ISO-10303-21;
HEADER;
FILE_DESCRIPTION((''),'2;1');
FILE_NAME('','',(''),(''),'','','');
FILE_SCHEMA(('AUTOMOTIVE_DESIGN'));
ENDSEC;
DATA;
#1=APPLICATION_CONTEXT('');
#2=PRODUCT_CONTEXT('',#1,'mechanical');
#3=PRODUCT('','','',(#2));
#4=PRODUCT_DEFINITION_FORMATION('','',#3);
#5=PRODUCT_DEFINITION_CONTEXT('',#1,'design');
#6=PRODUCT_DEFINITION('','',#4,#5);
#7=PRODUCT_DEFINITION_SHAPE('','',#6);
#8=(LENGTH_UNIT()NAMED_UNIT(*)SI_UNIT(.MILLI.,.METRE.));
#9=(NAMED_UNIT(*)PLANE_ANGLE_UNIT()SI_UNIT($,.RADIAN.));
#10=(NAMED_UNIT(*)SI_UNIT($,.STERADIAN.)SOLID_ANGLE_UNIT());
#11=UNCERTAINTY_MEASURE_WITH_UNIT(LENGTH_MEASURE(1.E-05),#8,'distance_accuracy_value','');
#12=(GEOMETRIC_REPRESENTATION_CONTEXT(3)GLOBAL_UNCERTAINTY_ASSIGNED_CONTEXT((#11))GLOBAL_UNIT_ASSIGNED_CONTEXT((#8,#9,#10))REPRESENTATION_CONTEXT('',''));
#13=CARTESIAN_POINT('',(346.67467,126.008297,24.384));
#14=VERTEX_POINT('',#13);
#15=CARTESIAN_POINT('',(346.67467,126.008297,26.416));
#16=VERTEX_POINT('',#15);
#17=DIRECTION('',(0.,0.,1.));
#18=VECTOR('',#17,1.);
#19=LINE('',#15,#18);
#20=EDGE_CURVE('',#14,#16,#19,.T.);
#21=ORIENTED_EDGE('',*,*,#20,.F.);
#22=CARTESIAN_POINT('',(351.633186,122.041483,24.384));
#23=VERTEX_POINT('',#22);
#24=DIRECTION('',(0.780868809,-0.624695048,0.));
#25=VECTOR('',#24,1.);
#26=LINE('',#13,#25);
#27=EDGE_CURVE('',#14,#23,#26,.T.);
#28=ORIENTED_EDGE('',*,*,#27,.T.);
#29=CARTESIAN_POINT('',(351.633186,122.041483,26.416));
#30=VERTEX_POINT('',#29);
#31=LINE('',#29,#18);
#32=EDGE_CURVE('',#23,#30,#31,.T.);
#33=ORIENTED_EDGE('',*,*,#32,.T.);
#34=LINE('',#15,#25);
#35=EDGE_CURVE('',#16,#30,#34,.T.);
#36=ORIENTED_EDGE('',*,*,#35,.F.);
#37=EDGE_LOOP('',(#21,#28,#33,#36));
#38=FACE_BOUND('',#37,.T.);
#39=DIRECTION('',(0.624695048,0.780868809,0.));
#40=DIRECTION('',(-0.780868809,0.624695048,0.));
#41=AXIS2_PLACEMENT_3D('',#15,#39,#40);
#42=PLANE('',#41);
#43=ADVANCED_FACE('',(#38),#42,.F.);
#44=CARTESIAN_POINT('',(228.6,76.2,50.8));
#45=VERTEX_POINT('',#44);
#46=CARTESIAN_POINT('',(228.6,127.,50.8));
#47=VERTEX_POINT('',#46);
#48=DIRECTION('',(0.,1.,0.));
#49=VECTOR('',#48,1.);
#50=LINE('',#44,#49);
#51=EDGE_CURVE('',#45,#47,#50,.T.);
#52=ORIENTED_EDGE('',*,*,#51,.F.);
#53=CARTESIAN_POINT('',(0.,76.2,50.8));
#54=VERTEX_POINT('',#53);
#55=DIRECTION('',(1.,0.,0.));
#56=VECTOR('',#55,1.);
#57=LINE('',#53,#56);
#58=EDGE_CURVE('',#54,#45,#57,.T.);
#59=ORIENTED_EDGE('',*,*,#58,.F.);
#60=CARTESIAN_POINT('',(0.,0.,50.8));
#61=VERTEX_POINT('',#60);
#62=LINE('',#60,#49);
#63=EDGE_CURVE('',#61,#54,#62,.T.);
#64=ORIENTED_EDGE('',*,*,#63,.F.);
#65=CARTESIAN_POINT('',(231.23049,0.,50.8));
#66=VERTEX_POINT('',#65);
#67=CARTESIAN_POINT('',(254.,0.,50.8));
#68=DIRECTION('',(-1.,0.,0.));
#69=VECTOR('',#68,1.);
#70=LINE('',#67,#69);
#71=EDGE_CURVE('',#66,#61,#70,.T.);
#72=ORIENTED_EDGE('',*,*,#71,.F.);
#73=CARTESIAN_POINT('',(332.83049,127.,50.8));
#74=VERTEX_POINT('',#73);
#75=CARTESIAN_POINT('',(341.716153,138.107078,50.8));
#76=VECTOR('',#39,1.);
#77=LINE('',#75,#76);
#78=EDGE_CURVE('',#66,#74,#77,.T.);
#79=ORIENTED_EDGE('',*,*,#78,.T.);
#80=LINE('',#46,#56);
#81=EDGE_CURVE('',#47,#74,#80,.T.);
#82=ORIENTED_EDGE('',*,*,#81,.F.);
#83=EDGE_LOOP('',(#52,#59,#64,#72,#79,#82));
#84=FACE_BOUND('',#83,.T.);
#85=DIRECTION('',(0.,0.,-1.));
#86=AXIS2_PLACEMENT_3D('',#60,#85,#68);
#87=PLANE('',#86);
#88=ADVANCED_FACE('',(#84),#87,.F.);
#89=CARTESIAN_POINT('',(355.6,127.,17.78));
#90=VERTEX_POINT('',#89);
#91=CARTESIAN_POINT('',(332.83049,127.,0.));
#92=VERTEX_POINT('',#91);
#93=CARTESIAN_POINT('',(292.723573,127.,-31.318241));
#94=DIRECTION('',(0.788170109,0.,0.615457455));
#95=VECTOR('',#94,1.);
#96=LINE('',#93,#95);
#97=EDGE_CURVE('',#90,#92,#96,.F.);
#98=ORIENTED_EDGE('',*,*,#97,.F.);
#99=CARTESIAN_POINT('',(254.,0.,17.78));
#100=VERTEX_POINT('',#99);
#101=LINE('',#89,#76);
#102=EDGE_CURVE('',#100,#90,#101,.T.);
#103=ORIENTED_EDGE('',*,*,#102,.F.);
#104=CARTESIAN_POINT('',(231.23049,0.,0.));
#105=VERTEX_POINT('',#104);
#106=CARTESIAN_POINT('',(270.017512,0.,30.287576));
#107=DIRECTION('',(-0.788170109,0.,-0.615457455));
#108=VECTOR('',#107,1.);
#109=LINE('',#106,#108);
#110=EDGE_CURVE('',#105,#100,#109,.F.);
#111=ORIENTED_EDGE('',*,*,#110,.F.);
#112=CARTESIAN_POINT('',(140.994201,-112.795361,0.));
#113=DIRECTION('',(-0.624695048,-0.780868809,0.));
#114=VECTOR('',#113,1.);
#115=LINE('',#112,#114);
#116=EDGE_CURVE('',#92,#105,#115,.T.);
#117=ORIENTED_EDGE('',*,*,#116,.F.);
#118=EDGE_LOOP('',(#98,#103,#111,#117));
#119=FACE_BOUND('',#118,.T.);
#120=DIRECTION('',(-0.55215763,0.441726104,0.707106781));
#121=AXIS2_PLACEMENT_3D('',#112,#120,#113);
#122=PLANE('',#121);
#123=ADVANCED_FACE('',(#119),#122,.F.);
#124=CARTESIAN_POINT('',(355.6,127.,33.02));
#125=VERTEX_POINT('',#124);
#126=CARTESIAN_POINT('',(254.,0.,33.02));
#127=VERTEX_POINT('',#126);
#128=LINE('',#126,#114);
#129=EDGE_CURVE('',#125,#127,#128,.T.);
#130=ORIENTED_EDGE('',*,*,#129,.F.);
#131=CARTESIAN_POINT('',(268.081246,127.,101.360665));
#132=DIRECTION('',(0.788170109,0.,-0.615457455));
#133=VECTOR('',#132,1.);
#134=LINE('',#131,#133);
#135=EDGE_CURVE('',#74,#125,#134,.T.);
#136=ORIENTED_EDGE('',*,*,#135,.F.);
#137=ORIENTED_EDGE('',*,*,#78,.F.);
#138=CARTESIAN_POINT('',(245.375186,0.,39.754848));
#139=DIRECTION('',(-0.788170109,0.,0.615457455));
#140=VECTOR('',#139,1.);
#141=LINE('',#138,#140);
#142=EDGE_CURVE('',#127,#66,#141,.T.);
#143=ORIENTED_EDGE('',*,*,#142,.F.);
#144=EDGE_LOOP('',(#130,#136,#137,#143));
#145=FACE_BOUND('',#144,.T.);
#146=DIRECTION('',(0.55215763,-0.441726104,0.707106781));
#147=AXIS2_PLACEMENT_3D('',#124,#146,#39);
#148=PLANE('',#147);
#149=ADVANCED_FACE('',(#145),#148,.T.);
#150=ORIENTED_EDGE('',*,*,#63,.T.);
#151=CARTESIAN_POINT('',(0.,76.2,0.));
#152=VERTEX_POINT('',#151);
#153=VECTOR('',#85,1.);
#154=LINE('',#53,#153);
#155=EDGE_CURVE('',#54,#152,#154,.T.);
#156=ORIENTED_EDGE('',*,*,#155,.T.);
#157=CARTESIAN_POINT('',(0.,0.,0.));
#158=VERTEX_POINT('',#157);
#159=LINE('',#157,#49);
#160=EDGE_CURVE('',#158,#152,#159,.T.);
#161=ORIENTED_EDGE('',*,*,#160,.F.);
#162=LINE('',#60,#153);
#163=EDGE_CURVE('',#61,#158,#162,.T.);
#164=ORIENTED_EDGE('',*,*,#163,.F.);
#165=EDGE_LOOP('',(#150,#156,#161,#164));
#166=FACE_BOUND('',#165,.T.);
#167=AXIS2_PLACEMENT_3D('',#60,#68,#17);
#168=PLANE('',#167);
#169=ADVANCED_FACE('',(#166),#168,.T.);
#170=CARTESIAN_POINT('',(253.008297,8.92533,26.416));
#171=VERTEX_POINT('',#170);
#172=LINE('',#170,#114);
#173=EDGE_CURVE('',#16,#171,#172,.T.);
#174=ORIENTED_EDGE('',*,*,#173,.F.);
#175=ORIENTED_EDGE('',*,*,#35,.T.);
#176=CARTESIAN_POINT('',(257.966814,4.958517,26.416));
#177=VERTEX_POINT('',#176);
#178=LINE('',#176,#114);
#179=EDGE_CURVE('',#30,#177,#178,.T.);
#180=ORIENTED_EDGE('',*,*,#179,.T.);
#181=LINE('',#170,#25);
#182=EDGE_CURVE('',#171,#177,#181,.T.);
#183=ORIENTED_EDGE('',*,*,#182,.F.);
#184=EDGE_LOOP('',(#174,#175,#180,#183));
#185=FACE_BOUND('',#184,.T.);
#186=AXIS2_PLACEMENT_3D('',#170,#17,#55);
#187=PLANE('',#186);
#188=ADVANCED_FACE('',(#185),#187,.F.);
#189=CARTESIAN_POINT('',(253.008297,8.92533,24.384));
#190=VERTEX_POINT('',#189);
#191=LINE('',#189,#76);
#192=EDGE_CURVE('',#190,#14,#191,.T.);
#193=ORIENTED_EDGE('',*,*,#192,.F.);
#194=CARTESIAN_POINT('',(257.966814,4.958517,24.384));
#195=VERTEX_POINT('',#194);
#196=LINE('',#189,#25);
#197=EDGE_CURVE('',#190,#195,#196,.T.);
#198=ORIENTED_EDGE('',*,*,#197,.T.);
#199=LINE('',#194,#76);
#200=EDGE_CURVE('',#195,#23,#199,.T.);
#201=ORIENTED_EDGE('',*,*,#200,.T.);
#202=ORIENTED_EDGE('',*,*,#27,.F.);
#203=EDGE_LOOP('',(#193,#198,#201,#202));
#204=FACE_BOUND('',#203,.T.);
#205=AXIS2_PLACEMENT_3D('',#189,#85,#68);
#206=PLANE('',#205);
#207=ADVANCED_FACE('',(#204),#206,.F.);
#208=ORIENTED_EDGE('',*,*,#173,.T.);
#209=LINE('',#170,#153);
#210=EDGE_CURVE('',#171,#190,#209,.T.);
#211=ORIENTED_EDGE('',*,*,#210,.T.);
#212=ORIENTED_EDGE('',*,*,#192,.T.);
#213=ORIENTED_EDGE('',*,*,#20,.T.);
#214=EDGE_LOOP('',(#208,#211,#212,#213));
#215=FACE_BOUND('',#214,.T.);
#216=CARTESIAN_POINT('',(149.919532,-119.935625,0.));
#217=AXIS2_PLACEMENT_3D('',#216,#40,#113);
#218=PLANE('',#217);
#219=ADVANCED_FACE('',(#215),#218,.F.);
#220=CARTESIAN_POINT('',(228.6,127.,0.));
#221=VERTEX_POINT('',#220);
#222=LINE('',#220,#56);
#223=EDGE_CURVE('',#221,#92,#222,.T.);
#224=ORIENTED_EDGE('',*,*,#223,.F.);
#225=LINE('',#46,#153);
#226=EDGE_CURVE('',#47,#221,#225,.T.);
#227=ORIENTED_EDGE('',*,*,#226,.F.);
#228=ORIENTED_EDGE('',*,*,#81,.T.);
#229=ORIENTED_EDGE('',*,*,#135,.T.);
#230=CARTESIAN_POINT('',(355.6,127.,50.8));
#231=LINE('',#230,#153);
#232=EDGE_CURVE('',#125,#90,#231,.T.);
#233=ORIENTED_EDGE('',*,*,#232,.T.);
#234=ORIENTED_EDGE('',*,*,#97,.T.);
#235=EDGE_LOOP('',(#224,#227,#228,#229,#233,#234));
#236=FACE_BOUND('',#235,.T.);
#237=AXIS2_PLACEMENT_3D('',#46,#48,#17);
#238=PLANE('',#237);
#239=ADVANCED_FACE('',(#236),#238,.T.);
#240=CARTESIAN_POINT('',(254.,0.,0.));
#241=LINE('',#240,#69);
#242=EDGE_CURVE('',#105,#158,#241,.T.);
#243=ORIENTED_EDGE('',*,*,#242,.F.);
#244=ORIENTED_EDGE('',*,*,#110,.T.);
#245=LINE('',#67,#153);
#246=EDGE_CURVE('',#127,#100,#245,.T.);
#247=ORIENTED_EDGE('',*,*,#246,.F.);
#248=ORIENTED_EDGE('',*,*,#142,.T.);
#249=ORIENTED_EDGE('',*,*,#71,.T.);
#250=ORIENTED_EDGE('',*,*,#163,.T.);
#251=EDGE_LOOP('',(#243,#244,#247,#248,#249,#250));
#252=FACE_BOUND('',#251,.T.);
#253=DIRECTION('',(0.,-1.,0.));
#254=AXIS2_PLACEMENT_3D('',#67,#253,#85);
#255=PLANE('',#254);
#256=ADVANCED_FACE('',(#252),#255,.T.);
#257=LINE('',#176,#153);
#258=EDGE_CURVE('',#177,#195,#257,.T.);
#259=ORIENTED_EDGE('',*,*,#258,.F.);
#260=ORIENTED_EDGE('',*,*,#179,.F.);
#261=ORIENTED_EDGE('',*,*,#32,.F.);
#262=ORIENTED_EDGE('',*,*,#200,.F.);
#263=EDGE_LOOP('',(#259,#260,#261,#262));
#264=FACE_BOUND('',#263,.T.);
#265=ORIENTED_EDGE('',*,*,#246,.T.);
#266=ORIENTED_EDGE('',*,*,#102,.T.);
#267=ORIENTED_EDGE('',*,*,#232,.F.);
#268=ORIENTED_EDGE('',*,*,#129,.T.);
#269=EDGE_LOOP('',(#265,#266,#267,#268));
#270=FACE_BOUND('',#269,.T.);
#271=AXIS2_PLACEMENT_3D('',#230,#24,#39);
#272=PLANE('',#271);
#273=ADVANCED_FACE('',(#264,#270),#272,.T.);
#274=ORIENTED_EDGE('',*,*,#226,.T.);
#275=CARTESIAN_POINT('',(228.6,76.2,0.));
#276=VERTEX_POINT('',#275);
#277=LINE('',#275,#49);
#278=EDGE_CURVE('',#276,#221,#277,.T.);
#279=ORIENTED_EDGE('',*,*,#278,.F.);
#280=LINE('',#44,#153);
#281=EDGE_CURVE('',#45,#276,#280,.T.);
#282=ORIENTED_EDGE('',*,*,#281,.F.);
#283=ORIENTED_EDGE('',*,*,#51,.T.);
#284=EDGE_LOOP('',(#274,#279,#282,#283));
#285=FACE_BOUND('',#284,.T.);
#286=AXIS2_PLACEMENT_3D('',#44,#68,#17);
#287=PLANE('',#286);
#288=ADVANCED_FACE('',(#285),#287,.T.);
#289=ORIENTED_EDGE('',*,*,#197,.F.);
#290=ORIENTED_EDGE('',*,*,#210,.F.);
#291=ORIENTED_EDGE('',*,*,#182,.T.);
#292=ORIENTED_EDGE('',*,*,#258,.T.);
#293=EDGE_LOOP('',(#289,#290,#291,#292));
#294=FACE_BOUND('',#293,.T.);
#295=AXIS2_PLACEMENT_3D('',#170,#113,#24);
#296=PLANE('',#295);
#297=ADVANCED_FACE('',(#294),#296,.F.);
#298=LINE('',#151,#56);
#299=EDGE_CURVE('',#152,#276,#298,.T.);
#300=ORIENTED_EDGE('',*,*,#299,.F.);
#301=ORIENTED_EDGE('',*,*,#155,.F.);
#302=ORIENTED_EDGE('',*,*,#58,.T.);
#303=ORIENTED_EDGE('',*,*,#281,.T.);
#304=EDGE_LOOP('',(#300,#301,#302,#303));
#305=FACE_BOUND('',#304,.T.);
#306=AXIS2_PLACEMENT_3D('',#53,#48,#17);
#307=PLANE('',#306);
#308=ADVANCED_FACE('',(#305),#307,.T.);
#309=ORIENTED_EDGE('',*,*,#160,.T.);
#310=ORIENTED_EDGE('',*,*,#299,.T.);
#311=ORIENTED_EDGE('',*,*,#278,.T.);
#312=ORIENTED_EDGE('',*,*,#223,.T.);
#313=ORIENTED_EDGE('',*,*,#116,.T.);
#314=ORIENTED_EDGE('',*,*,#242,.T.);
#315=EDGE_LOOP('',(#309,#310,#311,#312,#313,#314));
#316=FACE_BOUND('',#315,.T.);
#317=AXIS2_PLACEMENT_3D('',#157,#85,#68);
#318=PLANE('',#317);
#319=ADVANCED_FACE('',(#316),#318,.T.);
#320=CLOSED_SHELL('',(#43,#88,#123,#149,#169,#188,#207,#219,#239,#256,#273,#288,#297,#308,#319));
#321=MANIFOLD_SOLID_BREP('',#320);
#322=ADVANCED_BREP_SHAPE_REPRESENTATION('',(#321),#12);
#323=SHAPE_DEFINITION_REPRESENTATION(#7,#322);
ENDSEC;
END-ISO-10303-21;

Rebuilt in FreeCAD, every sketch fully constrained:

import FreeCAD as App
import Part
import Sketcher
from FreeCAD import Vector
Q = App.Units.Quantity


def edges_at(feature, points):
    """Names of the edges that pass closest to the given points."""
    edges = feature.Shape.Edges
    near = lambda p: min(range(len(edges)), key=lambda i: edges[i].distToShape(Part.Vertex(*p))[0])
    return sorted({f"Edge{near(p) + 1}" for p in points})

doc = App.newDocument("Part")
body = doc.addObject("PartDesign::Body", "Body")

sketch1 = doc.addObject("Sketcher::SketchObject", "Sketch")
body.addObject(sketch1)
sketch1.AttachmentSupport = (doc.XY_Plane, [""])
sketch1.MapMode = "FlatFace"
sketch1.addGeometry([
    Part.LineSegment(Vector(0, 76, 0), Vector(0, 0, 0)),
    Part.LineSegment(Vector(0, 0, 0), Vector(254, 0, 0)),
    Part.LineSegment(Vector(254, 0, 0), Vector(356, 127, 0)),
    Part.LineSegment(Vector(356, 127, 0), Vector(229, 127, 0)),
    Part.LineSegment(Vector(229, 127, 0), Vector(229, 76, 0)),
    Part.LineSegment(Vector(229, 76, 0), Vector(0, 76, 0)),
], False)
sketch1.addConstraint([
    Sketcher.Constraint("Coincident", 0, 2, 1, 1),
    Sketcher.Constraint("Coincident", 1, 2, 2, 1),
    Sketcher.Constraint("Coincident", 2, 2, 3, 1),
    Sketcher.Constraint("Coincident", 3, 2, 4, 1),
    Sketcher.Constraint("Coincident", 4, 2, 5, 1),
    Sketcher.Constraint("Coincident", 5, 2, 0, 1),
    Sketcher.Constraint("Vertical", 0),
    Sketcher.Constraint("Horizontal", 1),
    Sketcher.Constraint("Horizontal", 3),
    Sketcher.Constraint("Vertical", 4),
    Sketcher.Constraint("Horizontal", 5),
    Sketcher.Constraint("Coincident", 0, 2, -1, 1),
    Sketcher.Constraint("DistanceX", 1, 1, 1, 2, Q("10 in")),
    Sketcher.Constraint("DistanceX", 3, 2, 3, 1, Q("5 in")),
    Sketcher.Constraint("DistanceX", 5, 2, 5, 1, Q("9 in")),
    Sketcher.Constraint("DistanceY", 0, 2, 0, 1, Q("3 in")),
    Sketcher.Constraint("DistanceY", 4, 2, 4, 1, Q("2 in")),
])
pad1 = doc.addObject("PartDesign::Pad", "Pad")
body.addObject(pad1)
pad1.Profile = sketch1
pad1.Length = Q("2 in")
doc.recompute()

chamfer = doc.addObject("PartDesign::Chamfer", "Chamfer")
body.addObject(chamfer)
chamfer.Base = (pad1, edges_at(pad1, [(304.8, 63.5, 50.8)]))
chamfer.Size = Q("0.7 in")
doc.recompute()

chamfer2 = doc.addObject("PartDesign::Chamfer", "Chamfer001")
body.addObject(chamfer2)
chamfer2.Base = (chamfer, edges_at(chamfer, [(304.8, 63.5, 0)]))
chamfer2.Size = Q("0.7 in")

sketch2 = doc.addObject("Sketcher::SketchObject", "Sketch001")
body.addObject(sketch2)
sketch2.Placement = App.Placement(Vector(154.878049, -123.902439, 0), App.Rotation(Vector(0, 0, -1), Vector(0.624695048, 0.780868809, 0), Vector(0.780868809, -0.624695048, 0), "ZXY"))
sketch2.addGeometry([
    Part.LineSegment(Vector(-26.4, 315, 0), Vector(-26.4, 165, 0)),
    Part.LineSegment(Vector(-26.4, 165, 0), Vector(-24.4, 165, 0)),
    Part.LineSegment(Vector(-24.4, 165, 0), Vector(-24.4, 315, 0)),
    Part.LineSegment(Vector(-24.4, 315, 0), Vector(-26.4, 315, 0)),
], False)
sketch2.addConstraint([
    Sketcher.Constraint("Coincident", 0, 2, 1, 1),
    Sketcher.Constraint("Coincident", 1, 2, 2, 1),
    Sketcher.Constraint("Coincident", 2, 2, 3, 1),
    Sketcher.Constraint("Coincident", 3, 2, 0, 1),
    Sketcher.Constraint("Vertical", 0),
    Sketcher.Constraint("Horizontal", 1),
    Sketcher.Constraint("Vertical", 2),
    Sketcher.Constraint("Horizontal", 3),
    Sketcher.Constraint("DistanceX", 1, 1, 1, 2, Q("0.08 in")),
    Sketcher.Constraint("DistanceX", 0, 2, -1, 1, Q("1.04 in")),
    Sketcher.Constraint("DistanceY", 0, 2, 0, 1, 149.939356),
    Sketcher.Constraint("DistanceY", -1, 1, 0, 2, 165.022542),
])
pocket1 = doc.addObject("PartDesign::Pocket", "Pocket")
body.addObject(pocket1)
pocket1.Profile = sketch2
pocket1.Length = Q("0.25 in")

doc.recompute()
